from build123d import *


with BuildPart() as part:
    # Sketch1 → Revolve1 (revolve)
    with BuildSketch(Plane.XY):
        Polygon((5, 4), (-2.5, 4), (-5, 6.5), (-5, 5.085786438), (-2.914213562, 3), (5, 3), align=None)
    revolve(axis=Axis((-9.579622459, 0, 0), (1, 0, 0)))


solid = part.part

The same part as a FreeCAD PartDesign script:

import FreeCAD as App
import Part
import Sketcher
from FreeCAD import Vector
Q = App.Units.Quantity


def add_polygon(sketch, points):
    """Adds a closed chain of lines whose ends are joined by coincident constraints."""
    first, n = sketch.GeometryCount, len(points)
    for a, b in zip(points, points[1:] + points[:1]):
        sketch.addGeometry(Part.LineSegment(App.Vector(*a, 0), App.Vector(*b, 0)), False)
    for i in range(n):
        sketch.addConstraint(Sketcher.Constraint("Coincident", first + i, 2, first + (i + 1) % n, 1))

doc = App.newDocument("Part")
params = doc.addObject("Spreadsheet::Sheet", "Params")
for row, (alias, value) in enumerate([
    ("sketch1_height", "1 mm"),
    ("sketch1_width", "7.5 mm"),
    ("revolution_angle", "360 deg"),
], start=1):
    params.set(f"A{row}", alias)
    params.set(f"B{row}", "=" + value)
    params.setAlias(f"B{row}", alias)

body = doc.addObject("PartDesign::Body", "Body")

sketch1 = body.newObject("Sketcher::SketchObject", "Sketch")
sketch1.AttachmentSupport = (doc.getObject("XY_Plane"), [""])
sketch1.MapMode = "FlatFace"
add_polygon(sketch1, [(5, 4), (-2.5, 4), (-5, 6.5), (-5, 5.1), (-2.9, 3), (5, 3)])
sketch1.addConstraint(Sketcher.Constraint("Horizontal", 0))
sketch1.addConstraint(Sketcher.Constraint("Vertical", 2))
sketch1.addConstraint(Sketcher.Constraint("Horizontal", 4))
sketch1.addConstraint(Sketcher.Constraint("Vertical", 5))
sketch1.addConstraint(Sketcher.Constraint("Parallel", 1, 3))
sketch1.addConstraint(Sketcher.Constraint("DistanceY", 5, 1, 5, 2, Q("1 mm")))
sketch1.addConstraint(Sketcher.Constraint("Angle", 1, Q("135 deg")))
sketch1.addConstraint(Sketcher.Constraint("DistanceX", 0, 2, 0, 1, Q("7.5 mm")))
sketch1.addConstraint(Sketcher.Constraint("DistanceY", -1, 1, 0, 2, Q("4 mm")))
sketch1.addConstraint(Sketcher.Constraint("DistanceX", 1, 2, -1, 1, Q("5 mm")))
sketch1.addConstraint(Sketcher.Constraint("DistanceX", -1, 1, 4, 2, Q("5 mm")))
sketch1.addConstraint(Sketcher.Constraint("DistanceX", 4, 1, 4, 2, Q("7.914214 mm")))
sketch1.setExpression("Constraints[11]", "Params.sketch1_height")
sketch1.setExpression("Constraints[13]", "Params.sketch1_width")
revolution = body.newObject("PartDesign::Revolution", "Revolution")
revolution.Profile = sketch1
revolution.ReferenceAxis = (sketch1, ["H_Axis"])
revolution.setExpression("Angle", "Params.revolution_angle")

doc.recompute()
